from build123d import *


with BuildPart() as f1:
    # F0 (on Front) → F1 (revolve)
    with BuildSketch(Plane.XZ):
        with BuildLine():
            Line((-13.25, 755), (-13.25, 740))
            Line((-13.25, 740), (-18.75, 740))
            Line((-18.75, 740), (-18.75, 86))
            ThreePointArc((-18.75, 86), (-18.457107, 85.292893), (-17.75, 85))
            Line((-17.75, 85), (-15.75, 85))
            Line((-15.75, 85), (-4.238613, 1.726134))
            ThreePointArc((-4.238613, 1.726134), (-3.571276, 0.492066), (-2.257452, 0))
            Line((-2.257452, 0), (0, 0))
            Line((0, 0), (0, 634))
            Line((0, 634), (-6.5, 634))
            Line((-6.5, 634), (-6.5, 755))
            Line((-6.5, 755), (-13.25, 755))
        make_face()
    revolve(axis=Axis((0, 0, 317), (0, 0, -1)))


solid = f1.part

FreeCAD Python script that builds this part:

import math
import FreeCAD as App
import Part
import Sketcher
Q = App.Units.Quantity

doc = App.newDocument("Part")
body = doc.addObject("PartDesign::Body", "Body")

# Sketch on XZ plane
sketch1 = body.newObject("Sketcher::SketchObject", "Sketch")
sketch1.AttachmentSupport = (doc.getObject("XZ_Plane"), [""])
sketch1.MapMode = "FlatFace"
sketch1.addGeometry(Part.LineSegment(App.Vector(-13.2, 755, 0), App.Vector(-13.2, 740, 0)), False)
sketch1.addGeometry(Part.LineSegment(App.Vector(-13.2, 740, 0), App.Vector(-18.8, 740, 0)), False)
sketch1.addGeometry(Part.LineSegment(App.Vector(-18.8, 740, 0), App.Vector(-18.8, 86, 0)), False)
sketch1.addGeometry(Part.ArcOfCircle(Part.Circle(App.Vector(-17.8, 86, 0), App.Vector(0, 0, 1), 1), math.radians(180), math.radians(270)), False)
sketch1.addGeometry(Part.LineSegment(App.Vector(-17.8, 85, 0), App.Vector(-15.8, 85, 0)), False)
sketch1.addGeometry(Part.LineSegment(App.Vector(-15.8, 85, 0), App.Vector(-4.2, 1.7, 0)), False)
sketch1.addGeometry(Part.ArcOfCircle(Part.Circle(App.Vector(-2.3, 2, 0), App.Vector(0, 0, 1), 2), math.radians(-172), math.radians(-90)), False)
sketch1.addGeometry(Part.LineSegment(App.Vector(-2.3, 0, 0), App.Vector(0, 0, 0)), False)
sketch1.addGeometry(Part.LineSegment(App.Vector(0, 0, 0), App.Vector(0, 634, 0)), False)
sketch1.addGeometry(Part.LineSegment(App.Vector(0, 634, 0), App.Vector(-6.5, 634, 0)), False)
sketch1.addGeometry(Part.LineSegment(App.Vector(-6.5, 634, 0), App.Vector(-6.5, 755, 0)), False)
sketch1.addGeometry(Part.LineSegment(App.Vector(-6.5, 755, 0), App.Vector(-13.2, 755, 0)), False)
sketch1.addConstraint(Sketcher.Constraint("Coincident", 0, 2, 1, 1))
sketch1.addConstraint(Sketcher.Constraint("Coincident", 1, 2, 2, 1))
sketch1.addConstraint(Sketcher.Constraint("Tangent", 2, 2, 3, 1))
sketch1.addConstraint(Sketcher.Constraint("Tangent", 3, 2, 4, 1))
sketch1.addConstraint(Sketcher.Constraint("Coincident", 4, 2, 5, 1))
sketch1.addConstraint(Sketcher.Constraint("Tangent", 5, 2, 6, 1))
sketch1.addConstraint(Sketcher.Constraint("Tangent", 6, 2, 7, 1))
sketch1.addConstraint(Sketcher.Constraint("Coincident", 7, 2, 8, 1))
sketch1.addConstraint(Sketcher.Constraint("Coincident", 8, 2, 9, 1))
sketch1.addConstraint(Sketcher.Constraint("Coincident", 9, 2, 10, 1))
sketch1.addConstraint(Sketcher.Constraint("Coincident", 10, 2, 11, 1))
sketch1.addConstraint(Sketcher.Constraint("Coincident", 11, 2, 0, 1))
sketch1.addConstraint(Sketcher.Constraint("Vertical", 0))
sketch1.addConstraint(Sketcher.Constraint("Horizontal", 1))
sketch1.addConstraint(Sketcher.Constraint("Vertical", 2))
sketch1.addConstraint(Sketcher.Constraint("Horizontal", 4))
sketch1.addConstraint(Sketcher.Constraint("Horizontal", 7))
sketch1.addConstraint(Sketcher.Constraint("Vertical", 8))
sketch1.addConstraint(Sketcher.Constraint("Horizontal", 9))
sketch1.addConstraint(Sketcher.Constraint("Vertical", 10))
sketch1.addConstraint(Sketcher.Constraint("Horizontal", 11))
sketch1.addConstraint(Sketcher.Constraint("Coincident", 7, 2, -1, 1))
sketch1.addConstraint(Sketcher.Constraint("Radius", 3, Q("0.999999 mm")))
sketch1.addConstraint(Sketcher.Constraint("Radius", 6, Q("2.000002 mm")))
sketch1.addConstraint(Sketcher.Constraint("DistanceX", 4, 1, 4, 2, Q("2 mm")))
sketch1.addConstraint(Sketcher.Constraint("DistanceY", 0, 2, 0, 1, Q("15 mm")))
sketch1.addConstraint(Sketcher.Constraint("DistanceY", 2, 2, 2, 1, Q("654 mm")))
sketch1.addConstraint(Sketcher.Constraint("DistanceY", 8, 1, 8, 2, Q("634 mm")))
sketch1.addConstraint(Sketcher.Constraint("DistanceY", 10, 1, 10, 2, Q("121 mm")))
sketch1.addConstraint(Sketcher.Constraint("DistanceX", 1, 2, 1, 1, Q("5.5 mm")))
sketch1.addConstraint(Sketcher.Constraint("DistanceX", 9, 2, 9, 1, Q("6.5 mm")))
sketch1.addConstraint(Sketcher.Constraint("DistanceX", 11, 2, 11, 1, Q("6.75 mm")))
sketch1.addConstraint(Sketcher.Constraint("DistanceX", 7, 1, 7, 2, Q("2.257452 mm")))
revolution = body.newObject("PartDesign::Revolution", "Revolution")
revolution.Profile = sketch1
revolution.ReferenceAxis = (sketch1, ["V_Axis"])
revolution.Angle = 360

doc.recompute()
